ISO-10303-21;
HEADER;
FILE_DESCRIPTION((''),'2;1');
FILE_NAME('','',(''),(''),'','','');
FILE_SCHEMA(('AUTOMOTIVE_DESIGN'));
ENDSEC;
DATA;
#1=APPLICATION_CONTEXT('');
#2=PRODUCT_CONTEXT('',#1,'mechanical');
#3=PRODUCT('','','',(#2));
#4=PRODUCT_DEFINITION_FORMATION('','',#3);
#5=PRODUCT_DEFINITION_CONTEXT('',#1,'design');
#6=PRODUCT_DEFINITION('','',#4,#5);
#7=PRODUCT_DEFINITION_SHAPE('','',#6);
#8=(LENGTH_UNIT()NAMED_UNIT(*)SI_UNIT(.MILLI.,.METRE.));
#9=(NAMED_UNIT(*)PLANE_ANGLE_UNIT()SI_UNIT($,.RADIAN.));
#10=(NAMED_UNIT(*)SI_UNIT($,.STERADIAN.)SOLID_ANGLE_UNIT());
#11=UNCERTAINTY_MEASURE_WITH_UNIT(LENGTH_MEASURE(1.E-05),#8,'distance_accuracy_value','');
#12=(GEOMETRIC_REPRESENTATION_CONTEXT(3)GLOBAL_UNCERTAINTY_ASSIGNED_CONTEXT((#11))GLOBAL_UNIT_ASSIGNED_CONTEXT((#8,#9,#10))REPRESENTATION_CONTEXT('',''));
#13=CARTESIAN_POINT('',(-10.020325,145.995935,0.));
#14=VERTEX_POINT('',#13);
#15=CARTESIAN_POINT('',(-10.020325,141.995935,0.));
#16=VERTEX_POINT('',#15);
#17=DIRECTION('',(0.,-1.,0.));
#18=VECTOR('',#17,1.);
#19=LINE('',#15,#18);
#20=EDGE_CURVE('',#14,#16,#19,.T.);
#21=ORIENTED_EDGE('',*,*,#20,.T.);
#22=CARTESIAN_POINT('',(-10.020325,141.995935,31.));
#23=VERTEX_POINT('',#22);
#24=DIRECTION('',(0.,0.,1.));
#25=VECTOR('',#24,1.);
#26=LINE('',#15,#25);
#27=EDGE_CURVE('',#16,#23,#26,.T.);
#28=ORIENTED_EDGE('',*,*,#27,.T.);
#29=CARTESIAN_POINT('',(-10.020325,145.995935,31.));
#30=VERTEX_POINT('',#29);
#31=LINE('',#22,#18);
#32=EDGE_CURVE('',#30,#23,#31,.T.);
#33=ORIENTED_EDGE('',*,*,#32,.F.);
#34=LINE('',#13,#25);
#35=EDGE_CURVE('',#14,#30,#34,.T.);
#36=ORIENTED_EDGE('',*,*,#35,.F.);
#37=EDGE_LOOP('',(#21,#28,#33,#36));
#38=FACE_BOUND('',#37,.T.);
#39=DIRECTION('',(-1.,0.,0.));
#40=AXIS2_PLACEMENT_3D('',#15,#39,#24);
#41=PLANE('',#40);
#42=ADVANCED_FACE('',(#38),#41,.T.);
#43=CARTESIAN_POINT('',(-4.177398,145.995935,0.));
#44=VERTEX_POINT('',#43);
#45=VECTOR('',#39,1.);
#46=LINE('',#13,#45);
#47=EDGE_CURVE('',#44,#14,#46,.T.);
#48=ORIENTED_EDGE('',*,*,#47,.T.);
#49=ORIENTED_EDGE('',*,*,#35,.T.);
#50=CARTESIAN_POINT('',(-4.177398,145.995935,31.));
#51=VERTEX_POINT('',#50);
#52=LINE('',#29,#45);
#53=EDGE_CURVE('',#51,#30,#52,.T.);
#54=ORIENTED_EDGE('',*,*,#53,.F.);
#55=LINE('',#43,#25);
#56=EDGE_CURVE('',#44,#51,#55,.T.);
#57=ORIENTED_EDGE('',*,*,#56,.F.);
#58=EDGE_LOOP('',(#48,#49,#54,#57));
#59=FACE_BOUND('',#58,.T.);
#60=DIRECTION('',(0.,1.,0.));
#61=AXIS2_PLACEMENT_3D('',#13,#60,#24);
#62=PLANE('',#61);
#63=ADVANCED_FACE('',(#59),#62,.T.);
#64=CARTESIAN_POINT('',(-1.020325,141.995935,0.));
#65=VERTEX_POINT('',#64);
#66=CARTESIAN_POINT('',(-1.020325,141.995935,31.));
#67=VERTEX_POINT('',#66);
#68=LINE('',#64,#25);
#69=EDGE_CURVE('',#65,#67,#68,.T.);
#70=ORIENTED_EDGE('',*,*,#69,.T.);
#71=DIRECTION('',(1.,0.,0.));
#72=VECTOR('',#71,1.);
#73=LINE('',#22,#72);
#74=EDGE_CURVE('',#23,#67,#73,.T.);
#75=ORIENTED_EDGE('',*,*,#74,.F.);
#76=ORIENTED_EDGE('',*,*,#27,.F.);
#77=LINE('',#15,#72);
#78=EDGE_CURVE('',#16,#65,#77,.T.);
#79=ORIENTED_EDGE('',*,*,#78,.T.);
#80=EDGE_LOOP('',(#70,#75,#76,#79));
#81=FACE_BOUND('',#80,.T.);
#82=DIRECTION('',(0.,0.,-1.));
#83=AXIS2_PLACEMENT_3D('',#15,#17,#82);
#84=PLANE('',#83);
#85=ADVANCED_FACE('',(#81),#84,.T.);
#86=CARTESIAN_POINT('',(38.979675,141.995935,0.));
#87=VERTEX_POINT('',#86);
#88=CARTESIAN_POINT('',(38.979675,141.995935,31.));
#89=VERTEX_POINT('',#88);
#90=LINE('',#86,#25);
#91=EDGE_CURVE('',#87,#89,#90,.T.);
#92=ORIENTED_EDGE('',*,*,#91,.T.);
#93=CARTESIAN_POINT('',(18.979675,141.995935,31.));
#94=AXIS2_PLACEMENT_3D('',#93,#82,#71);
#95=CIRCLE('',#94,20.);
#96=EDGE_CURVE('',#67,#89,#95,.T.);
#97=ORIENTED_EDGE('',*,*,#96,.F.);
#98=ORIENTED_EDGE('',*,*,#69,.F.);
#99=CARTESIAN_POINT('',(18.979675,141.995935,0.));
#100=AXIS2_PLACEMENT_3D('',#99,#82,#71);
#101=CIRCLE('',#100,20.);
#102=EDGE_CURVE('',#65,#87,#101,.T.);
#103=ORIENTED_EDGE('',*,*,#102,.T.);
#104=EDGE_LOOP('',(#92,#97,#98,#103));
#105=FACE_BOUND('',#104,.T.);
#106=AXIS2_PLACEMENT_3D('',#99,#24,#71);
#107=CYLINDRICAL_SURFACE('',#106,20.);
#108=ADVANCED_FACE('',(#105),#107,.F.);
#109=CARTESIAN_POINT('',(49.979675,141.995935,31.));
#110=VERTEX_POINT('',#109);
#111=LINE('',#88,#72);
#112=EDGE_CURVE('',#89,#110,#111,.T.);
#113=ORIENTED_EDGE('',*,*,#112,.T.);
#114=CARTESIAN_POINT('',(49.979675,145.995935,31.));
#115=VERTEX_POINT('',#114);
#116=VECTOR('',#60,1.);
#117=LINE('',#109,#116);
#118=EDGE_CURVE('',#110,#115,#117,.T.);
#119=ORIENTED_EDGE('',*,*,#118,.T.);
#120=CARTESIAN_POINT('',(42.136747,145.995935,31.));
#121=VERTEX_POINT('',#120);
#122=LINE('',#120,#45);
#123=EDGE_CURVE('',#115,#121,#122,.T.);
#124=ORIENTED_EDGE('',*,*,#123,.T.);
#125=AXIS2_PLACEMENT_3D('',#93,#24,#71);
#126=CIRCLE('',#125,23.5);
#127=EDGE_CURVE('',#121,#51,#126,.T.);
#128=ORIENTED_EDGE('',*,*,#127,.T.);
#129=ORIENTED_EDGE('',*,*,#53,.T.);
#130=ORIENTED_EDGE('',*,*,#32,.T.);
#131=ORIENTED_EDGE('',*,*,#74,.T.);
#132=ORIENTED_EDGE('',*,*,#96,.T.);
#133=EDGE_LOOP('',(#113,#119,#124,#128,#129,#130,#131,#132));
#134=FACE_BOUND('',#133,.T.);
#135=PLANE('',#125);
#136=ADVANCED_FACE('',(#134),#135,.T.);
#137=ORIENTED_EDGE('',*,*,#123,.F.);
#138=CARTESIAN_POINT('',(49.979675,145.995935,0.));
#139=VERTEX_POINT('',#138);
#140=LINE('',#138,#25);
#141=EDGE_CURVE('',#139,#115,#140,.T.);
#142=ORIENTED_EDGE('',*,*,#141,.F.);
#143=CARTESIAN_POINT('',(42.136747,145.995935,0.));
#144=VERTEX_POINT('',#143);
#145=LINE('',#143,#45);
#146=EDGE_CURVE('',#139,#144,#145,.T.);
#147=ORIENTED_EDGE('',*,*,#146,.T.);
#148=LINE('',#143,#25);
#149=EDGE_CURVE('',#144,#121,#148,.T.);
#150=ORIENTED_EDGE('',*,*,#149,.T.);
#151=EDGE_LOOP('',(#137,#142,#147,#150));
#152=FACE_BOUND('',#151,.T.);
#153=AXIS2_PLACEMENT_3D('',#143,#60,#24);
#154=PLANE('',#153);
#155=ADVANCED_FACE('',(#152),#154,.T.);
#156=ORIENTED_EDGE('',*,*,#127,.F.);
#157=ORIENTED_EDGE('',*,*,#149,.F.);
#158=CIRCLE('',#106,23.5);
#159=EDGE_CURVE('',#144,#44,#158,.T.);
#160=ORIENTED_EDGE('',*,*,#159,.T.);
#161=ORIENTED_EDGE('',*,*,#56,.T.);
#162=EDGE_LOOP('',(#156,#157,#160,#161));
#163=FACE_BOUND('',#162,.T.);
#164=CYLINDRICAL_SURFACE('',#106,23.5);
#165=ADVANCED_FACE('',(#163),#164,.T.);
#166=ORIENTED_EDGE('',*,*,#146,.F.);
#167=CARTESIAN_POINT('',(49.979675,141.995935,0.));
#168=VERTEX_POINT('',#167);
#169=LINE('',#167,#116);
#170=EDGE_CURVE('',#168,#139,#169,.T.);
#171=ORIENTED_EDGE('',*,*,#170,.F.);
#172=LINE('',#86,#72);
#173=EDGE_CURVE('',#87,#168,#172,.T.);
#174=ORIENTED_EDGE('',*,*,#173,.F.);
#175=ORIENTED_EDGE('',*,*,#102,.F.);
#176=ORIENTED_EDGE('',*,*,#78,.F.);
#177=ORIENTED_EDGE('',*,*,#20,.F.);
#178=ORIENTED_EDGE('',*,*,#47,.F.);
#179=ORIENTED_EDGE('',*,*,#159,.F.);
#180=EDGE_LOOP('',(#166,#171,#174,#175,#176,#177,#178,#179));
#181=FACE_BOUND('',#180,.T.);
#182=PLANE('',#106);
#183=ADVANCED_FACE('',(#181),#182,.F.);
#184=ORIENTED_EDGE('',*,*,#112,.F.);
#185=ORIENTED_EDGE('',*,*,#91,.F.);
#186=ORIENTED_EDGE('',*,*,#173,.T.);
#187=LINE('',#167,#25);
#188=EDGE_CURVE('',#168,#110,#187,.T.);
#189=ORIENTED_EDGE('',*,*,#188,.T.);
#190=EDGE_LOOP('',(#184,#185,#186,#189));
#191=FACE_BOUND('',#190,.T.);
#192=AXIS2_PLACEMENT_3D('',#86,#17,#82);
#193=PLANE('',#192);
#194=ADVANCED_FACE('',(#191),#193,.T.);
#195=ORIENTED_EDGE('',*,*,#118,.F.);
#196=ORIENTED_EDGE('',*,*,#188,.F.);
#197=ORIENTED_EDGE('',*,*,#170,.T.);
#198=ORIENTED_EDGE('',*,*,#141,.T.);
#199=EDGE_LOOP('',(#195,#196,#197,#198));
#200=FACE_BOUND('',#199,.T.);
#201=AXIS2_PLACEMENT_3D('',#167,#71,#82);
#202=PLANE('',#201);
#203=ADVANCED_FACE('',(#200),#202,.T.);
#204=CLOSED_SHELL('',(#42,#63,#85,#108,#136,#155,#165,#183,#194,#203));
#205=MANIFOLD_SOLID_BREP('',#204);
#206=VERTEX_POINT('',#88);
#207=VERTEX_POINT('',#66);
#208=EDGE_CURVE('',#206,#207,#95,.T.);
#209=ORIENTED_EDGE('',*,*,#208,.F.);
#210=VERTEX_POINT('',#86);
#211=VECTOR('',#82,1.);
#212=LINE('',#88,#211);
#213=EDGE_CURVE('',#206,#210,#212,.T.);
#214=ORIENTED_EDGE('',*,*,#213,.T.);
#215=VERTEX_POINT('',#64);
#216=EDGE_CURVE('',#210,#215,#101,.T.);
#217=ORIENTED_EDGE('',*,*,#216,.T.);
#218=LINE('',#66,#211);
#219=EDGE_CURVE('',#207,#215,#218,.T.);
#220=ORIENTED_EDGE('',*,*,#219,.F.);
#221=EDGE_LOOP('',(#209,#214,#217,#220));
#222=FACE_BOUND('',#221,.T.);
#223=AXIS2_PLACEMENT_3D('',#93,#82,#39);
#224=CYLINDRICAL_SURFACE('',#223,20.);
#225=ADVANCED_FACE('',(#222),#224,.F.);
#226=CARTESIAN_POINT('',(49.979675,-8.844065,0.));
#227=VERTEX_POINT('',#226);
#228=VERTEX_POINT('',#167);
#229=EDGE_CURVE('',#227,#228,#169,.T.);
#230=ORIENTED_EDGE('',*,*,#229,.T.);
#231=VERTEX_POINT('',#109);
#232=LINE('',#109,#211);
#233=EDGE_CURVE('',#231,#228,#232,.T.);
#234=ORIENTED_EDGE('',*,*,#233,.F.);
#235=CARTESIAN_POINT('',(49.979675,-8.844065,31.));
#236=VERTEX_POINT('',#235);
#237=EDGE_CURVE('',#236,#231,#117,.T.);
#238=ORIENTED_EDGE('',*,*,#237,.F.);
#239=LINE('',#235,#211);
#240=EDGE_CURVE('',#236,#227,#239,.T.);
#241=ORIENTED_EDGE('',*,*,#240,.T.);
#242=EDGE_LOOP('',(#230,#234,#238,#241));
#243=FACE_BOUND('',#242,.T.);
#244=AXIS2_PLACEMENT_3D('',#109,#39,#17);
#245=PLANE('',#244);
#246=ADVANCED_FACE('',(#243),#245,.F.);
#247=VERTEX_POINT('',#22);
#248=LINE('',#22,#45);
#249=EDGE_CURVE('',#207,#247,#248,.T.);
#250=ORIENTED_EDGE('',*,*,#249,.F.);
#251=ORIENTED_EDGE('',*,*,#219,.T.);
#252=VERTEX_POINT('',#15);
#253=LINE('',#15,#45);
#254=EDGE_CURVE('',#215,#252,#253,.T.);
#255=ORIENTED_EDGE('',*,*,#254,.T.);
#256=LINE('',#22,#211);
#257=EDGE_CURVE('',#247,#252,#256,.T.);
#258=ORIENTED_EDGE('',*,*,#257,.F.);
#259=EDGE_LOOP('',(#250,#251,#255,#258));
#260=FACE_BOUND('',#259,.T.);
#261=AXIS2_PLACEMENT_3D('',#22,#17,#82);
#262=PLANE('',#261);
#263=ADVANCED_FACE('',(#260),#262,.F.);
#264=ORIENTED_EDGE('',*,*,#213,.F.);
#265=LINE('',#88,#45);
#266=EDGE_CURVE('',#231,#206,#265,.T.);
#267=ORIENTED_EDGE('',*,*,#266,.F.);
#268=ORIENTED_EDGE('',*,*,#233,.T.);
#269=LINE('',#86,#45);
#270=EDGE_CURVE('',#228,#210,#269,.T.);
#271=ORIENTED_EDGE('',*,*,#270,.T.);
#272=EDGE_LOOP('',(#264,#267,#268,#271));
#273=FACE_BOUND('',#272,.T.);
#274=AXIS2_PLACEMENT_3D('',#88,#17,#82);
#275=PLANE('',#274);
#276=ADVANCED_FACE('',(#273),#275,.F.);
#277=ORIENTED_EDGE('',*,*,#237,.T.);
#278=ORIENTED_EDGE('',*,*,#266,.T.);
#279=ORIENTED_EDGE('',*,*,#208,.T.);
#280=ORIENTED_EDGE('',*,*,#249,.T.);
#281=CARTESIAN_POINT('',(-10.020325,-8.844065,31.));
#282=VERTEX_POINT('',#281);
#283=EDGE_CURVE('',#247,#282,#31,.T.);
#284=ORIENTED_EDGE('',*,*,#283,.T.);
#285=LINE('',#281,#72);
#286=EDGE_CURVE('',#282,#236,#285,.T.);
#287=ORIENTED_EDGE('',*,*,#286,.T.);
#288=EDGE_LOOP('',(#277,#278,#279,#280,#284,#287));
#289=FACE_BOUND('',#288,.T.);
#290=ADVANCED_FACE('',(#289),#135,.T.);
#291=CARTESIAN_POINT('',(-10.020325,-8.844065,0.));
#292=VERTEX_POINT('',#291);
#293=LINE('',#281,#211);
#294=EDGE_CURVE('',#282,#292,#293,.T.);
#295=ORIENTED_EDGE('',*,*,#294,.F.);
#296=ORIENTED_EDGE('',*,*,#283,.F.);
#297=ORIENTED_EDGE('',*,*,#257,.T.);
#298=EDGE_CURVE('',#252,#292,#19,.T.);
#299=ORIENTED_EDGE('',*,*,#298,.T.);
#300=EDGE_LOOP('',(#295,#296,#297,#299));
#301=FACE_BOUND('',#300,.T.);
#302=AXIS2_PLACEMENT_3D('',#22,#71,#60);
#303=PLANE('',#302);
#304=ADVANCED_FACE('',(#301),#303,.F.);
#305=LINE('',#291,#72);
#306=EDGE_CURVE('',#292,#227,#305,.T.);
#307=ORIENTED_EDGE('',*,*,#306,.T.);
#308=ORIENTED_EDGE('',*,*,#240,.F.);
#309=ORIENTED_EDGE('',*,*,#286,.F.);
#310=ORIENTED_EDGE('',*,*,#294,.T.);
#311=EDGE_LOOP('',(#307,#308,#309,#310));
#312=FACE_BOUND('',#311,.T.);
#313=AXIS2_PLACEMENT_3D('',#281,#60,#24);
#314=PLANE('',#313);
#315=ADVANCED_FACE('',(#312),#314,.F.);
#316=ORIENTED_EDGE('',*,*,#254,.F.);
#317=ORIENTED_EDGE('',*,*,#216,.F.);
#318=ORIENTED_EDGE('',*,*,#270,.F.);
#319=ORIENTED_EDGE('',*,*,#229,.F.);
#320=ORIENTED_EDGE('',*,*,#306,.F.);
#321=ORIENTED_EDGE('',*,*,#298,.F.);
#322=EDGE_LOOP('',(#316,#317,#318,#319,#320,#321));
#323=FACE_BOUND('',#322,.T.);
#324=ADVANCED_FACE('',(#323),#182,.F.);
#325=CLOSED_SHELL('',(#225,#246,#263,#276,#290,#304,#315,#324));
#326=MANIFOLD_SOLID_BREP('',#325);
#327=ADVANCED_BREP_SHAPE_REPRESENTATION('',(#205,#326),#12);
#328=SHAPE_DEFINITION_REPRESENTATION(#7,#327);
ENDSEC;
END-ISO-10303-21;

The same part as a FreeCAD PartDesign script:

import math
import FreeCAD as App
import Part
import Sketcher
from FreeCAD import Vector

doc = App.newDocument("Part")
body = doc.addObject("PartDesign::Body", "Body")

# Sketch on XY plane
sketch1 = doc.addObject("Sketcher::SketchObject", "Sketch")
body.addObject(sketch1)
sketch1.AttachmentSupport = (doc.XY_Plane, [""])
sketch1.MapMode = "FlatFace"
sketch1.addGeometry([
    Part.LineSegment(Vector(49.979675, 141.995935, 0), Vector(38.979675, 141.995935, 0)),  # 0
    Part.ArcOfCircle(Part.Circle(Vector(18.979675, 141.995935, 0), Vector(0, 0, 1), 20), math.radians(180), math.radians(360)),  # 1
    Part.LineSegment(Vector(-1.020325, 141.995935, 0), Vector(-10.020325, 141.995935, 0)),  # 2
    Part.LineSegment(Vector(-10.020325, 141.995935, 0), Vector(-10.020325, -8.844065, 0)),  # 3
    Part.LineSegment(Vector(-10.020325, -8.844065, 0), Vector(49.979675, -8.844065, 0)),  # 4
    Part.LineSegment(Vector(49.979675, -8.844065, 0), Vector(49.979675, 141.995935, 0)),  # 5
], False)
sketch1.addConstraint([
    Sketcher.Constraint("Coincident", 0, 2, 1, 2),
    Sketcher.Constraint("Coincident", 1, 1, 2, 1),
    Sketcher.Constraint("Coincident", 2, 2, 3, 1),
    Sketcher.Constraint("Coincident", 3, 2, 4, 1),
    Sketcher.Constraint("Coincident", 4, 2, 5, 1),
    Sketcher.Constraint("Coincident", 5, 2, 0, 1),
    Sketcher.Constraint("Horizontal", 0),
    Sketcher.Constraint("Horizontal", 2),
    Sketcher.Constraint("Vertical", 3),
    Sketcher.Constraint("Horizontal", 4),
    Sketcher.Constraint("Vertical", 5),
    Sketcher.Constraint("Horizontal", 1, 3, 0, 2),
    Sketcher.Constraint("Horizontal", 0, 2, 1, 1),
    Sketcher.Constraint("Radius", 1, 20.0),
    Sketcher.Constraint("DistanceX", 0, 2, 0, 1, 11.0),
    Sketcher.Constraint("DistanceX", 2, 2, 2, 1, 9.0),
    Sketcher.Constraint("DistanceY", 3, 2, 3, 1, 150.84),
    Sketcher.Constraint("DistanceX", -1, 1, 1, 3, 18.979675),
    Sketcher.Constraint("DistanceY", -1, 1, 1, 3, 141.995935),
])
pad1 = doc.addObject("PartDesign::Pad", "Pad")
body.addObject(pad1)
pad1.Profile = sketch1
pad1.Length = 31
body2 = doc.addObject("PartDesign::Body", "Body001")

# Sketch on XY plane
sketch2 = doc.addObject("Sketcher::SketchObject", "Sketch001")
body2.addObject(sketch2)
sketch2.AttachmentSupport = (doc.getObject("XY_Plane001"), [""])
sketch2.MapMode = "FlatFace"
sketch2.AttachmentOffset = App.Placement(Vector(0, 0, 31), App.Rotation())
sketch2.addGeometry([
    Part.LineSegment(Vector(-10.020325, 145.995935, 0), Vector(-10.020325, 141.995935, 0)),  # 0
    Part.LineSegment(Vector(-10.020325, 141.995935, 0), Vector(-1.020325, 141.995935, 0)),  # 1
    Part.ArcOfCircle(Part.Circle(Vector(18.979675, 141.995935, 0), Vector(0, 0, 1), 20), math.radians(0), math.radians(180)),  # 2
    Part.LineSegment(Vector(38.979675, 141.995935, 0), Vector(49.979675, 141.995935, 0)),  # 3
    Part.LineSegment(Vector(49.979675, 141.995935, 0), Vector(49.979675, 145.995935, 0)),  # 4
    Part.LineSegment(Vector(49.979675, 145.995935, 0), Vector(42.136747, 145.995935, 0)),  # 5
    Part.ArcOfCircle(Part.Circle(Vector(18.979675, 141.995935, 0), Vector(0, 0, 1), 23.5), math.radians(9.80019), math.radians(170.19981)),  # 6
    Part.LineSegment(Vector(-4.177398, 145.995935, 0), Vector(-10.020325, 145.995935, 0)),  # 7
], False)
sketch2.addConstraint([
    Sketcher.Constraint("Coincident", 0, 2, 1, 1),
    Sketcher.Constraint("Coincident", 1, 2, 2, 2),
    Sketcher.Constraint("Coincident", 2, 1, 3, 1),
    Sketcher.Constraint("Coincident", 3, 2, 4, 1),
    Sketcher.Constraint("Coincident", 4, 2, 5, 1),
    Sketcher.Constraint("Coincident", 5, 2, 6, 1),
    Sketcher.Constraint("Coincident", 6, 2, 7, 1),
    Sketcher.Constraint("Coincident", 7, 2, 0, 1),
    Sketcher.Constraint("Vertical", 0),
    Sketcher.Constraint("Horizontal", 1),
    Sketcher.Constraint("Horizontal", 3),
    Sketcher.Constraint("Vertical", 4),
    Sketcher.Constraint("Horizontal", 5),
    Sketcher.Constraint("Horizontal", 7),
    Sketcher.Constraint("Coincident", 6, 3, 2, 3),
    Sketcher.Constraint("Horizontal", 6, 3, 0, 2),
    Sketcher.Constraint("Horizontal", 1, 2, 2, 1),
    Sketcher.Constraint("Horizontal", 5, 2, 6, 2),
    Sketcher.Constraint("Radius", 2, 20.0),
    Sketcher.Constraint("Radius", 6, 23.5),
    Sketcher.Constraint("DistanceX", 1, 1, 1, 2, 9.0),
    Sketcher.Constraint("DistanceX", 3, 1, 3, 2, 11.0),
    Sketcher.Constraint("DistanceY", 0, 2, 0, 1, 4.0),
    Sketcher.Constraint("DistanceX", -1, 1, 2, 3, 18.979675),
    Sketcher.Constraint("DistanceY", -1, 1, 2, 3, 141.995935),
])
pad2 = doc.addObject("PartDesign::Pad", "Pad001")
body2.addObject(pad2)
pad2.Profile = sketch2
pad2.Length = 31
pad2.Reversed = True

doc.recompute()
